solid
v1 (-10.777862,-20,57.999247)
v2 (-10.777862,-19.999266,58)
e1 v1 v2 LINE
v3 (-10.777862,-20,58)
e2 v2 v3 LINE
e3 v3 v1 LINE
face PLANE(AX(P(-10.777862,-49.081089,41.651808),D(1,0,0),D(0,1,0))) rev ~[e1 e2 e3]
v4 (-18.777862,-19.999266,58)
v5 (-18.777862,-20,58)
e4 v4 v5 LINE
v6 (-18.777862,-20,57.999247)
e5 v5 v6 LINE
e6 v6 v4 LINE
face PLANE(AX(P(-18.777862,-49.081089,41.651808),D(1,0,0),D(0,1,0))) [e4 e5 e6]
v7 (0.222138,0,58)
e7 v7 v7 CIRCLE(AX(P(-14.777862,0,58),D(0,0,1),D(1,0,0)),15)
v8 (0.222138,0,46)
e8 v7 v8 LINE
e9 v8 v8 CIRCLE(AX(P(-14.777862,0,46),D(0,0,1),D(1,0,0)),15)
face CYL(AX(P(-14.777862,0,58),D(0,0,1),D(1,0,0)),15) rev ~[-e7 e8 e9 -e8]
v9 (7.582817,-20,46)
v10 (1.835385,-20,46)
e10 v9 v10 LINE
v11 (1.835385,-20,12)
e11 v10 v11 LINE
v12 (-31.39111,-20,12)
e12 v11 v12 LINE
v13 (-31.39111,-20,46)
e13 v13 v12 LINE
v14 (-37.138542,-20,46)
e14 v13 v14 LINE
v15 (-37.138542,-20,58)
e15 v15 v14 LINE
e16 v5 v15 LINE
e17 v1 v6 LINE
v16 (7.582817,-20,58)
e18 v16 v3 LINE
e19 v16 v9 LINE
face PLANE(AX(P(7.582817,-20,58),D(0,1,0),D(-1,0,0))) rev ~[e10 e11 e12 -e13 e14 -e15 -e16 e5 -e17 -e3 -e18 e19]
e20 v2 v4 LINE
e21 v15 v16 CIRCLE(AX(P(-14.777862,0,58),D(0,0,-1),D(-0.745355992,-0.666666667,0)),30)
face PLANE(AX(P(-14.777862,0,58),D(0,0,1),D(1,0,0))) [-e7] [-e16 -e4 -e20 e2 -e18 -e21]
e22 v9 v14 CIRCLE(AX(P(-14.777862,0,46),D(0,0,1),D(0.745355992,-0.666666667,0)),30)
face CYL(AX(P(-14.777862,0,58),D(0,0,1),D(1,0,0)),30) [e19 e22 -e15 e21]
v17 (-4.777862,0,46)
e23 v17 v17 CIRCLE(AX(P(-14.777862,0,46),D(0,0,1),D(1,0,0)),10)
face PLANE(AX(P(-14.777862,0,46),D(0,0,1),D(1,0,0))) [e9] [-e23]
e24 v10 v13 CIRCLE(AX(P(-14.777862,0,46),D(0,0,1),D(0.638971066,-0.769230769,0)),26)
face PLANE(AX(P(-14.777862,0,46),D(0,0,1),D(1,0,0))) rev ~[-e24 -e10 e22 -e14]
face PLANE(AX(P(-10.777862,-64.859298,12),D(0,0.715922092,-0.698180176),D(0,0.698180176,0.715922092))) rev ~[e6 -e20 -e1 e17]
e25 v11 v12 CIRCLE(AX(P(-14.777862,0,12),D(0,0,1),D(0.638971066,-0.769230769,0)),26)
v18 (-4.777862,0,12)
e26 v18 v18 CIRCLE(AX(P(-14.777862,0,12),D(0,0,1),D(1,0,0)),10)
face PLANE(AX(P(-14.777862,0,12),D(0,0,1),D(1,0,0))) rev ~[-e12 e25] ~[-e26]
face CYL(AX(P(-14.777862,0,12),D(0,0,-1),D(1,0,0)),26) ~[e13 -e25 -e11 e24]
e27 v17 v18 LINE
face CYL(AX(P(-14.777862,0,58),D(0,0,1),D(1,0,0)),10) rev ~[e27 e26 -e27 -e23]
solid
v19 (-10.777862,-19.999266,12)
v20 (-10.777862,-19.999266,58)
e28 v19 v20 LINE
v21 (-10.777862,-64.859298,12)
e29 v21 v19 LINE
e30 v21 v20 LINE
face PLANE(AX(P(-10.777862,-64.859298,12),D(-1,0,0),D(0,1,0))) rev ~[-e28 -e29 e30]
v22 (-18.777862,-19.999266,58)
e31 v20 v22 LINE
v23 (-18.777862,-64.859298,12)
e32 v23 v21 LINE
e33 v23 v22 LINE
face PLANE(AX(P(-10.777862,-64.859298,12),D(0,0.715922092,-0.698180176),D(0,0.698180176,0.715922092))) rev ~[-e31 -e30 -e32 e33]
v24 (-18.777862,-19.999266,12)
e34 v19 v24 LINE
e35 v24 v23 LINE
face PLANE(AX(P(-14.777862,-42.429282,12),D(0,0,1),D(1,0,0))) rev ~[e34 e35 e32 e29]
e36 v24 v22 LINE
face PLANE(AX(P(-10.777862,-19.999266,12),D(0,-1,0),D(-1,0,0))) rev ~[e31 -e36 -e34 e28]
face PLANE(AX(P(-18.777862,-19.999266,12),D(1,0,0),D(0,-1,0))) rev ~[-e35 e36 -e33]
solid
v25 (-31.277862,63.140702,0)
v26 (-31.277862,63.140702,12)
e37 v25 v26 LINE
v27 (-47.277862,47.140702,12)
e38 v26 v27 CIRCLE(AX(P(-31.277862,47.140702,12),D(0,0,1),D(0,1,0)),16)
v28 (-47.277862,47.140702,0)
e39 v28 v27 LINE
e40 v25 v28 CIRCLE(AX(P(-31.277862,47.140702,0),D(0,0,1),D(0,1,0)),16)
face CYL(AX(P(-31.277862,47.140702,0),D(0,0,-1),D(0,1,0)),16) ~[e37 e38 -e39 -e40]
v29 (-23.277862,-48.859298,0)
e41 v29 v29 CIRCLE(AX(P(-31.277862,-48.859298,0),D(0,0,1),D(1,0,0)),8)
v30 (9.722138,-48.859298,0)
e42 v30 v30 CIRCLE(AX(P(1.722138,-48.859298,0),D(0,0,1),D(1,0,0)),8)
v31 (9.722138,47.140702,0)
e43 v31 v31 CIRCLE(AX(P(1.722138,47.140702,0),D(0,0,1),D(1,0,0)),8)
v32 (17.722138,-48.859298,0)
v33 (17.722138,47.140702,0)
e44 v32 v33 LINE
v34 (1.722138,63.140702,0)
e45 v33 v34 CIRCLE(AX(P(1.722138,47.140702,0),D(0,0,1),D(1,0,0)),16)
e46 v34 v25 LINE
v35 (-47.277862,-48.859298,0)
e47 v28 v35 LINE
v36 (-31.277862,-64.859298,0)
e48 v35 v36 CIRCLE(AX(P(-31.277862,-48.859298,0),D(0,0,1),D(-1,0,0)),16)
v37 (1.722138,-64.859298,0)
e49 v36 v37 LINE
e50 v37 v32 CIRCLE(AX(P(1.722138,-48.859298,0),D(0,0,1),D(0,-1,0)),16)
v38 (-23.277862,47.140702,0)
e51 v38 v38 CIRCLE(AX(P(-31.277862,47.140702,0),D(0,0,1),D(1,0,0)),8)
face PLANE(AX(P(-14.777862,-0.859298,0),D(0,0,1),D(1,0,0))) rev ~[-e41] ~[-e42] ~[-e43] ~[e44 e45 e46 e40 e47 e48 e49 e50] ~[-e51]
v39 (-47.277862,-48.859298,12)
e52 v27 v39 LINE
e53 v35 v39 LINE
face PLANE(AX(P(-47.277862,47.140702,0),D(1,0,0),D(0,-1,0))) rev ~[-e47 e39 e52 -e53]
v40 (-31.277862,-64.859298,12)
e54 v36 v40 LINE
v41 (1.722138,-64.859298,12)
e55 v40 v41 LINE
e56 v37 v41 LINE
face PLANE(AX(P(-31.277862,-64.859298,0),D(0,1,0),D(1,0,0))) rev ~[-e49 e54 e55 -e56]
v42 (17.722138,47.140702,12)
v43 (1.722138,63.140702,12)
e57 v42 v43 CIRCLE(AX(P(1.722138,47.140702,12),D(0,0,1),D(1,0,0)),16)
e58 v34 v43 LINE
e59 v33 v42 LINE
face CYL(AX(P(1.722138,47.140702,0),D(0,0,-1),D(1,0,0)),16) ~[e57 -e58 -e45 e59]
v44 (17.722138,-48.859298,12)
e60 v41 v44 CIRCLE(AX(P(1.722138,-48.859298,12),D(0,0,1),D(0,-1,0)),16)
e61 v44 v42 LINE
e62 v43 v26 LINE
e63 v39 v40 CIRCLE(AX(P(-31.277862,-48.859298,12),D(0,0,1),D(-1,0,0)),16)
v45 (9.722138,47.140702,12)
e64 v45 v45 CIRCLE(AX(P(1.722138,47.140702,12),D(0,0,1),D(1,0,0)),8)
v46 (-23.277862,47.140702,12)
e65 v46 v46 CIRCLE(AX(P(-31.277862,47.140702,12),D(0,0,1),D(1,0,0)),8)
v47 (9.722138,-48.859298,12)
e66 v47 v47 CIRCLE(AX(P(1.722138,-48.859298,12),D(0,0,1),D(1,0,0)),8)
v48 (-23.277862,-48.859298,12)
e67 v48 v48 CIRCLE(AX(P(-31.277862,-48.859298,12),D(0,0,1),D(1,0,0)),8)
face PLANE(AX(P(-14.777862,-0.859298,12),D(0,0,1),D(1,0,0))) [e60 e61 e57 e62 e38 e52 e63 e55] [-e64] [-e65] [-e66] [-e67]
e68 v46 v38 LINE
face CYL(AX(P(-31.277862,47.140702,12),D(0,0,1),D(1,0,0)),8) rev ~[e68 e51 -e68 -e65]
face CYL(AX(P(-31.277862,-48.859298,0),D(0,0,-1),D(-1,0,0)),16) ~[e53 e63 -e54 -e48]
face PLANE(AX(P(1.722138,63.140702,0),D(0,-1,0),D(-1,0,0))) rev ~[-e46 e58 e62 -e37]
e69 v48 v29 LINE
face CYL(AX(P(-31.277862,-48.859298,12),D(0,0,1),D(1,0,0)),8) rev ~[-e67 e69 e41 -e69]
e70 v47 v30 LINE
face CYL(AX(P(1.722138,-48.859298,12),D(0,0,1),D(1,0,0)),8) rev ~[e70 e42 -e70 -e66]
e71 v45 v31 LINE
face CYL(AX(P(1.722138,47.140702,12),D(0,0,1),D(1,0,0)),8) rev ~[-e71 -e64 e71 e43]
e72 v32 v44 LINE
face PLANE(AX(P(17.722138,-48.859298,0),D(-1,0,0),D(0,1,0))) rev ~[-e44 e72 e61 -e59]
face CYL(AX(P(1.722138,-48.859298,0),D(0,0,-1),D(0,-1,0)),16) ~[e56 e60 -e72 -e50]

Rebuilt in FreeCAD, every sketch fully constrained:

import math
import FreeCAD as App
import Part
import Sketcher


def add_polygon(sketch, points):
    """Adds a closed chain of lines whose ends are joined by coincident constraints."""
    first, n = sketch.GeometryCount, len(points)
    for a, b in zip(points, points[1:] + points[:1]):
        sketch.addGeometry(Part.LineSegment(App.Vector(*a, 0), App.Vector(*b, 0)), False)
    for i in range(n):
        sketch.addConstraint(Sketcher.Constraint("Coincident", first + i, 2, first + (i + 1) % n, 1))

doc = App.newDocument("Part")
params = doc.addObject("Spreadsheet::Sheet", "Params")
for row, (alias, value) in enumerate([
    ("sketch1_radius", "16 mm"),
    ("sketch1_width", "33 mm"),
    ("sketch1_height", "96 mm"),
    ("pad1_length", "12 mm"),
    ("sketch2_diameter", "16 mm"),
    ("pocket1_length", "25 mm"),
    ("sketch3_diameter", "52 mm"),
    ("pad2_length", "46 mm"),
    ("sketch4_diameter", "20 mm"),
    ("pocket2_length", "58 mm"),
    ("sketch5_diameter", "60 mm"),
    ("pad3_length", "12 mm"),
    ("sketch6_diameter", "30 mm"),
    ("pocket3_length", "12 mm"),
    ("sketch7_radius", "30 mm"),
    ("sketch8_width", "8 mm"),
    ("pad4_length", "46 mm"),
    ("sketch9_height", "46 mm"),
    ("pad5_length", "8 mm"),
], start=1):
    params.set(f"A{row}", alias)
    params.set(f"B{row}", "=" + value)
    params.setAlias(f"B{row}", alias)

body = doc.addObject("PartDesign::Body", "Body")

# Sketch on XY plane
sketch1 = doc.addObject("Sketcher::SketchObject", "Sketch")
body.addObject(sketch1)
sketch1.AttachmentSupport = (doc.XY_Plane, [""])
sketch1.MapMode = "FlatFace"
sketch1.addGeometry([
    Part.ArcOfCircle(Part.Circle(App.Vector(-31, 47, 0), App.Vector(0, 0, 1), 16), math.radians(90), math.radians(180)),  # 0
    Part.LineSegment(App.Vector(-47, 47, 0), App.Vector(-47, -49, 0)),  # 1
    Part.ArcOfCircle(Part.Circle(App.Vector(-31, -49, 0), App.Vector(0, 0, 1), 16), math.radians(180), math.radians(270)),  # 2
    Part.LineSegment(App.Vector(-31, -65, 0), App.Vector(2, -65, 0)),  # 3
    Part.ArcOfCircle(Part.Circle(App.Vector(2, -49, 0), App.Vector(0, 0, 1), 16), math.radians(-90), math.radians(0)),  # 4
    Part.LineSegment(App.Vector(18, -49, 0), App.Vector(18, 47, 0)),  # 5
    Part.ArcOfCircle(Part.Circle(App.Vector(2, 47, 0), App.Vector(0, 0, 1), 16), math.radians(0), math.radians(90)),  # 6
    Part.LineSegment(App.Vector(2, 63, 0), App.Vector(-31, 63, 0)),  # 7
], False)
sketch1.addConstraint([
    Sketcher.Constraint("Tangent", 0, 2, 1, 1),
    Sketcher.Constraint("Tangent", 1, 2, 2, 1),
    Sketcher.Constraint("Tangent", 2, 2, 3, 1),
    Sketcher.Constraint("Tangent", 3, 2, 4, 1),
    Sketcher.Constraint("Tangent", 4, 2, 5, 1),
    Sketcher.Constraint("Tangent", 5, 2, 6, 1),
    Sketcher.Constraint("Tangent", 6, 2, 7, 1),
    Sketcher.Constraint("Tangent", 7, 2, 0, 1),
    Sketcher.Constraint("Vertical", 1),
    Sketcher.Constraint("Horizontal", 3),
    Sketcher.Constraint("Vertical", 5),
    Sketcher.Constraint("Horizontal", 7),
    Sketcher.Constraint("Equal", 0, 2),
    Sketcher.Constraint("Equal", 2, 4),
    Sketcher.Constraint("Equal", 4, 6),
    Sketcher.Constraint("Radius", 0, 16.0),
    Sketcher.Constraint("DistanceX", 3, 1, 3, 2, 33.0),
    Sketcher.Constraint("DistanceY", 1, 2, 1, 1, 96.0),
    Sketcher.Constraint("DistanceX", 0, 3, -1, 1, 31.277862),
    Sketcher.Constraint("DistanceY", -1, 1, 0, 3, 47.140702),
])
sketch1.setExpression("Constraints[15]", "Params.sketch1_radius")
sketch1.setExpression("Constraints[16]", "Params.sketch1_width")
sketch1.setExpression("Constraints[17]", "Params.sketch1_height")
pad1 = doc.addObject("PartDesign::Pad", "Pad")
body.addObject(pad1)
pad1.Profile = sketch1
pad1.setExpression("Length", "Params.pad1_length")

# Sketch on XY plane
sketch2 = doc.addObject("Sketcher::SketchObject", "Sketch001")
body.addObject(sketch2)
sketch2.AttachmentSupport = (doc.XY_Plane, [""])
sketch2.MapMode = "FlatFace"
sketch2.AttachmentOffset = App.Placement(App.Vector(0, 0, 12), App.Rotation())
sketch2.addGeometry([
    Part.Circle(App.Vector(-31, 47, 0), App.Vector(0, 0, 1), 8),
    Part.Circle(App.Vector(2, 47, 0), App.Vector(0, 0, 1), 8),
    Part.Circle(App.Vector(2, -49, 0), App.Vector(0, 0, 1), 8),
    Part.Circle(App.Vector(-31, -49, 0), App.Vector(0, 0, 1), 8),
], False)
sketch2.addConstraint([
    Sketcher.Constraint("Equal", 0, 1),
    Sketcher.Constraint("Equal", 1, 2),
    Sketcher.Constraint("Equal", 2, 3),
    Sketcher.Constraint("Horizontal", 0, 3, 1, 3),
    Sketcher.Constraint("Horizontal", 2, 3, 3, 3),
    Sketcher.Constraint("Vertical", 1, 3, 2, 3),
    Sketcher.Constraint("Vertical", 0, 3, 3, 3),
    Sketcher.Constraint("Diameter", 0, 16.0),
    Sketcher.Constraint("DistanceX", 0, 3, 1, 3, 33.0),
    Sketcher.Constraint("DistanceY", 2, 3, 1, 3, 96.0),
    Sketcher.Constraint("DistanceX", 0, 3, -1, 1, 31.277862),
    Sketcher.Constraint("DistanceY", -1, 1, 0, 3, 47.140702),
])
sketch2.setExpression("Constraints[7]", "Params.sketch2_diameter")
pocket1 = doc.addObject("PartDesign::Pocket", "Pocket")
body.addObject(pocket1)
pocket1.Profile = sketch2
pocket1.setExpression("Length", "Params.pocket1_length")
body2 = doc.addObject("PartDesign::Body", "Body001")

# Sketch on XY plane
sketch3 = doc.addObject("Sketcher::SketchObject", "Sketch002")
body2.addObject(sketch3)
sketch3.AttachmentSupport = (doc.getObject("XY_Plane001"), [""])
sketch3.MapMode = "FlatFace"
sketch3.AttachmentOffset = App.Placement(App.Vector(0, 0, 12), App.Rotation())
sketch3.addGeometry(Part.Circle(App.Vector(-15, 0, 0), App.Vector(0, 0, 1), 26), False)
sketch3.addConstraint([
    Sketcher.Constraint("PointOnObject", 0, 3, -1),
    Sketcher.Constraint("Diameter", 0, 52.0),
    Sketcher.Constraint("DistanceX", 0, 3, -1, 1, 14.777862),
])
sketch3.setExpression("Constraints[1]", "Params.sketch3_diameter")
pad2 = doc.addObject("PartDesign::Pad", "Pad001")
body2.addObject(pad2)
pad2.Profile = sketch3
pad2.setExpression("Length", "Params.pad2_length")

# Sketch on XY plane
sketch4 = doc.addObject("Sketcher::SketchObject", "Sketch003")
body2.addObject(sketch4)
sketch4.AttachmentSupport = (doc.getObject("XY_Plane001"), [""])
sketch4.MapMode = "FlatFace"
sketch4.AttachmentOffset = App.Placement(App.Vector(0, 0, 58), App.Rotation())
sketch4.addGeometry(Part.Circle(App.Vector(-15, 0, 0), App.Vector(0, 0, 1), 10), False)
sketch4.addConstraint([
    Sketcher.Constraint("PointOnObject", 0, 3, -1),
    Sketcher.Constraint("Diameter", 0, 20.0),
    Sketcher.Constraint("DistanceX", 0, 3, -1, 1, 14.777862),
])
sketch4.setExpression("Constraints[1]", "Params.sketch4_diameter")
pocket2 = doc.addObject("PartDesign::Pocket", "Pocket001")
body2.addObject(pocket2)
pocket2.Profile = sketch4
pocket2.setExpression("Length", "Params.pocket2_length")

# Sketch on XY plane
sketch5 = doc.addObject("Sketcher::SketchObject", "Sketch004")
body2.addObject(sketch5)
sketch5.AttachmentSupport = (doc.getObject("XY_Plane001"), [""])
sketch5.MapMode = "FlatFace"
sketch5.AttachmentOffset = App.Placement(App.Vector(0, 0, 58), App.Rotation())
sketch5.addGeometry(Part.Circle(App.Vector(-15, 0, 0), App.Vector(0, 0, 1), 30), False)
sketch5.addConstraint([
    Sketcher.Constraint("PointOnObject", 0, 3, -1),
    Sketcher.Constraint("Diameter", 0, 60.0),
    Sketcher.Constraint("DistanceX", 0, 3, -1, 1, 14.777862),
])
sketch5.setExpression("Constraints[1]", "Params.sketch5_diameter")
pad3 = doc.addObject("PartDesign::Pad", "Pad002")
body2.addObject(pad3)
pad3.Profile = sketch5
pad3.setExpression("Length", "Params.pad3_length")
pad3.Reversed = True

# Sketch on XY plane
sketch6 = doc.addObject("Sketcher::SketchObject", "Sketch005")
body2.addObject(sketch6)
sketch6.AttachmentSupport = (doc.getObject("XY_Plane001"), [""])
sketch6.MapMode = "FlatFace"
sketch6.AttachmentOffset = App.Placement(App.Vector(0, 0, 58), App.Rotation())
sketch6.addGeometry(Part.Circle(App.Vector(-15, 0, 0), App.Vector(0, 0, 1), 15), False)
sketch6.addConstraint([
    Sketcher.Constraint("PointOnObject", 0, 3, -1),
    Sketcher.Constraint("Diameter", 0, 30.0),
    Sketcher.Constraint("DistanceX", 0, 3, -1, 1, 14.777862),
])
sketch6.setExpression("Constraints[1]", "Params.sketch6_diameter")
pocket3 = doc.addObject("PartDesign::Pocket", "Pocket002")
body2.addObject(pocket3)
pocket3.Profile = sketch6
pocket3.setExpression("Length", "Params.pocket3_length")

# Sketch on XY plane
sketch7 = doc.addObject("Sketcher::SketchObject", "Sketch006")
body2.addObject(sketch7)
sketch7.AttachmentSupport = (doc.getObject("XY_Plane001"), [""])
sketch7.MapMode = "FlatFace"
sketch7.AttachmentOffset = App.Placement(App.Vector(0, 0, 58), App.Rotation())
sketch7.addGeometry([
    Part.LineSegment(App.Vector(8, -20, 0), App.Vector(-37, -20, 0)),
    Part.ArcOfCircle(Part.Circle(App.Vector(-15, 0, 0), App.Vector(0, 0, 1), 30), math.radians(-138), math.radians(-42)),
], False)
sketch7.addConstraint([
    Sketcher.Constraint("Coincident", 0, 1, 1, 2),
    Sketcher.Constraint("Coincident", 1, 1, 0, 2),
    Sketcher.Constraint("Horizontal", 0),
    Sketcher.Constraint("PointOnObject", 1, 3, -1),
    Sketcher.Constraint("Radius", 1, 30.0),
    Sketcher.Constraint("DistanceY", 0, 1, -1, 1, 20.0),
    Sketcher.Constraint("DistanceX", 1, 3, -1, 1, 14.777862),
])
sketch7.setExpression("Constraints[4]", "Params.sketch7_radius")
pocket4 = doc.addObject("PartDesign::Pocket", "Pocket003")
body2.addObject(pocket4)
pocket4.Profile = sketch7
pocket4.Type = "ThroughAll"
body3 = doc.addObject("PartDesign::Body", "Body002")

# Sketch on XY plane
sketch8 = doc.addObject("Sketcher::SketchObject", "Sketch007")
body3.addObject(sketch8)
sketch8.AttachmentSupport = (doc.getObject("XY_Plane002"), [""])
sketch8.MapMode = "FlatFace"
sketch8.AttachmentOffset = App.Placement(App.Vector(0, 0, 12), App.Rotation())
add_polygon(sketch8, [(-19, -20), (-19, -65), (-11, -65), (-11, -20)])  # lines 0-3
sketch8.addConstraint([
    Sketcher.Constraint("Vertical", 0),
    Sketcher.Constraint("Horizontal", 1),
    Sketcher.Constraint("Vertical", 2),
    Sketcher.Constraint("Horizontal", 3),
    Sketcher.Constraint("DistanceX", 1, 1, 1, 2, 8.0),
    Sketcher.Constraint("DistanceY", 0, 2, 0, 1, 44.860032),
    Sketcher.Constraint("DistanceX", 0, 2, -1, 1, 18.777862),
    Sketcher.Constraint("DistanceY", 0, 2, -1, 1, 64.859298),
])
sketch8.setExpression("Constraints[8]", "Params.sketch8_width")
pad4 = doc.addObject("PartDesign::Pad", "Pad003")
body3.addObject(pad4)
pad4.Profile = sketch8
pad4.setExpression("Length", "Params.pad4_length")
body4 = doc.addObject("PartDesign::Body", "Body003")

# Sketch on YZ plane
sketch9 = doc.addObject("Sketcher::SketchObject", "Sketch008")
body4.addObject(sketch9)
sketch9.AttachmentSupport = (doc.getObject("YZ_Plane003"), [""])
sketch9.MapMode = "FlatFace"
sketch9.AttachmentOffset = App.Placement(App.Vector(0, 0, -10.777862), App.Rotation())
add_polygon(sketch9, [(-65, 12), (-20, 58), (-65, 58)])  # lines 0-2
sketch9.addConstraint([
    Sketcher.Constraint("Horizontal", 1),
    Sketcher.Constraint("Vertical", 2),
    Sketcher.Constraint("DistanceY", 2, 2, 2, 1, 46.0),
    Sketcher.Constraint("DistanceY", -1, 1, 0, 2, 58.0),
    Sketcher.Constraint("Distance", 0, 64.252801),
    Sketcher.Constraint("DistanceX", 0, 2, -1, 1, 19.999266),
])
sketch9.setExpression("Constraints[5]", "Params.sketch9_height")
pad5 = doc.addObject("PartDesign::Pad", "Pad004")
body4.addObject(pad5)
pad5.Profile = sketch9
pad5.setExpression("Length", "Params.pad5_length")
pad5.Reversed = True
doc.recompute()

body5 = doc.addObject("PartDesign::Body", "Body004")
body5.BaseFeature = body4
boolean = doc.addObject("PartDesign::Boolean", "Boolean")
body2.addObject(boolean)
boolean.Type = "Cut"
boolean.addObjects([body5])
doc.recompute()

boolean2 = doc.addObject("PartDesign::Boolean", "Boolean001")
body3.addObject(boolean2)
boolean2.Type = "Cut"
boolean2.addObjects([body4])

doc.recompute()
